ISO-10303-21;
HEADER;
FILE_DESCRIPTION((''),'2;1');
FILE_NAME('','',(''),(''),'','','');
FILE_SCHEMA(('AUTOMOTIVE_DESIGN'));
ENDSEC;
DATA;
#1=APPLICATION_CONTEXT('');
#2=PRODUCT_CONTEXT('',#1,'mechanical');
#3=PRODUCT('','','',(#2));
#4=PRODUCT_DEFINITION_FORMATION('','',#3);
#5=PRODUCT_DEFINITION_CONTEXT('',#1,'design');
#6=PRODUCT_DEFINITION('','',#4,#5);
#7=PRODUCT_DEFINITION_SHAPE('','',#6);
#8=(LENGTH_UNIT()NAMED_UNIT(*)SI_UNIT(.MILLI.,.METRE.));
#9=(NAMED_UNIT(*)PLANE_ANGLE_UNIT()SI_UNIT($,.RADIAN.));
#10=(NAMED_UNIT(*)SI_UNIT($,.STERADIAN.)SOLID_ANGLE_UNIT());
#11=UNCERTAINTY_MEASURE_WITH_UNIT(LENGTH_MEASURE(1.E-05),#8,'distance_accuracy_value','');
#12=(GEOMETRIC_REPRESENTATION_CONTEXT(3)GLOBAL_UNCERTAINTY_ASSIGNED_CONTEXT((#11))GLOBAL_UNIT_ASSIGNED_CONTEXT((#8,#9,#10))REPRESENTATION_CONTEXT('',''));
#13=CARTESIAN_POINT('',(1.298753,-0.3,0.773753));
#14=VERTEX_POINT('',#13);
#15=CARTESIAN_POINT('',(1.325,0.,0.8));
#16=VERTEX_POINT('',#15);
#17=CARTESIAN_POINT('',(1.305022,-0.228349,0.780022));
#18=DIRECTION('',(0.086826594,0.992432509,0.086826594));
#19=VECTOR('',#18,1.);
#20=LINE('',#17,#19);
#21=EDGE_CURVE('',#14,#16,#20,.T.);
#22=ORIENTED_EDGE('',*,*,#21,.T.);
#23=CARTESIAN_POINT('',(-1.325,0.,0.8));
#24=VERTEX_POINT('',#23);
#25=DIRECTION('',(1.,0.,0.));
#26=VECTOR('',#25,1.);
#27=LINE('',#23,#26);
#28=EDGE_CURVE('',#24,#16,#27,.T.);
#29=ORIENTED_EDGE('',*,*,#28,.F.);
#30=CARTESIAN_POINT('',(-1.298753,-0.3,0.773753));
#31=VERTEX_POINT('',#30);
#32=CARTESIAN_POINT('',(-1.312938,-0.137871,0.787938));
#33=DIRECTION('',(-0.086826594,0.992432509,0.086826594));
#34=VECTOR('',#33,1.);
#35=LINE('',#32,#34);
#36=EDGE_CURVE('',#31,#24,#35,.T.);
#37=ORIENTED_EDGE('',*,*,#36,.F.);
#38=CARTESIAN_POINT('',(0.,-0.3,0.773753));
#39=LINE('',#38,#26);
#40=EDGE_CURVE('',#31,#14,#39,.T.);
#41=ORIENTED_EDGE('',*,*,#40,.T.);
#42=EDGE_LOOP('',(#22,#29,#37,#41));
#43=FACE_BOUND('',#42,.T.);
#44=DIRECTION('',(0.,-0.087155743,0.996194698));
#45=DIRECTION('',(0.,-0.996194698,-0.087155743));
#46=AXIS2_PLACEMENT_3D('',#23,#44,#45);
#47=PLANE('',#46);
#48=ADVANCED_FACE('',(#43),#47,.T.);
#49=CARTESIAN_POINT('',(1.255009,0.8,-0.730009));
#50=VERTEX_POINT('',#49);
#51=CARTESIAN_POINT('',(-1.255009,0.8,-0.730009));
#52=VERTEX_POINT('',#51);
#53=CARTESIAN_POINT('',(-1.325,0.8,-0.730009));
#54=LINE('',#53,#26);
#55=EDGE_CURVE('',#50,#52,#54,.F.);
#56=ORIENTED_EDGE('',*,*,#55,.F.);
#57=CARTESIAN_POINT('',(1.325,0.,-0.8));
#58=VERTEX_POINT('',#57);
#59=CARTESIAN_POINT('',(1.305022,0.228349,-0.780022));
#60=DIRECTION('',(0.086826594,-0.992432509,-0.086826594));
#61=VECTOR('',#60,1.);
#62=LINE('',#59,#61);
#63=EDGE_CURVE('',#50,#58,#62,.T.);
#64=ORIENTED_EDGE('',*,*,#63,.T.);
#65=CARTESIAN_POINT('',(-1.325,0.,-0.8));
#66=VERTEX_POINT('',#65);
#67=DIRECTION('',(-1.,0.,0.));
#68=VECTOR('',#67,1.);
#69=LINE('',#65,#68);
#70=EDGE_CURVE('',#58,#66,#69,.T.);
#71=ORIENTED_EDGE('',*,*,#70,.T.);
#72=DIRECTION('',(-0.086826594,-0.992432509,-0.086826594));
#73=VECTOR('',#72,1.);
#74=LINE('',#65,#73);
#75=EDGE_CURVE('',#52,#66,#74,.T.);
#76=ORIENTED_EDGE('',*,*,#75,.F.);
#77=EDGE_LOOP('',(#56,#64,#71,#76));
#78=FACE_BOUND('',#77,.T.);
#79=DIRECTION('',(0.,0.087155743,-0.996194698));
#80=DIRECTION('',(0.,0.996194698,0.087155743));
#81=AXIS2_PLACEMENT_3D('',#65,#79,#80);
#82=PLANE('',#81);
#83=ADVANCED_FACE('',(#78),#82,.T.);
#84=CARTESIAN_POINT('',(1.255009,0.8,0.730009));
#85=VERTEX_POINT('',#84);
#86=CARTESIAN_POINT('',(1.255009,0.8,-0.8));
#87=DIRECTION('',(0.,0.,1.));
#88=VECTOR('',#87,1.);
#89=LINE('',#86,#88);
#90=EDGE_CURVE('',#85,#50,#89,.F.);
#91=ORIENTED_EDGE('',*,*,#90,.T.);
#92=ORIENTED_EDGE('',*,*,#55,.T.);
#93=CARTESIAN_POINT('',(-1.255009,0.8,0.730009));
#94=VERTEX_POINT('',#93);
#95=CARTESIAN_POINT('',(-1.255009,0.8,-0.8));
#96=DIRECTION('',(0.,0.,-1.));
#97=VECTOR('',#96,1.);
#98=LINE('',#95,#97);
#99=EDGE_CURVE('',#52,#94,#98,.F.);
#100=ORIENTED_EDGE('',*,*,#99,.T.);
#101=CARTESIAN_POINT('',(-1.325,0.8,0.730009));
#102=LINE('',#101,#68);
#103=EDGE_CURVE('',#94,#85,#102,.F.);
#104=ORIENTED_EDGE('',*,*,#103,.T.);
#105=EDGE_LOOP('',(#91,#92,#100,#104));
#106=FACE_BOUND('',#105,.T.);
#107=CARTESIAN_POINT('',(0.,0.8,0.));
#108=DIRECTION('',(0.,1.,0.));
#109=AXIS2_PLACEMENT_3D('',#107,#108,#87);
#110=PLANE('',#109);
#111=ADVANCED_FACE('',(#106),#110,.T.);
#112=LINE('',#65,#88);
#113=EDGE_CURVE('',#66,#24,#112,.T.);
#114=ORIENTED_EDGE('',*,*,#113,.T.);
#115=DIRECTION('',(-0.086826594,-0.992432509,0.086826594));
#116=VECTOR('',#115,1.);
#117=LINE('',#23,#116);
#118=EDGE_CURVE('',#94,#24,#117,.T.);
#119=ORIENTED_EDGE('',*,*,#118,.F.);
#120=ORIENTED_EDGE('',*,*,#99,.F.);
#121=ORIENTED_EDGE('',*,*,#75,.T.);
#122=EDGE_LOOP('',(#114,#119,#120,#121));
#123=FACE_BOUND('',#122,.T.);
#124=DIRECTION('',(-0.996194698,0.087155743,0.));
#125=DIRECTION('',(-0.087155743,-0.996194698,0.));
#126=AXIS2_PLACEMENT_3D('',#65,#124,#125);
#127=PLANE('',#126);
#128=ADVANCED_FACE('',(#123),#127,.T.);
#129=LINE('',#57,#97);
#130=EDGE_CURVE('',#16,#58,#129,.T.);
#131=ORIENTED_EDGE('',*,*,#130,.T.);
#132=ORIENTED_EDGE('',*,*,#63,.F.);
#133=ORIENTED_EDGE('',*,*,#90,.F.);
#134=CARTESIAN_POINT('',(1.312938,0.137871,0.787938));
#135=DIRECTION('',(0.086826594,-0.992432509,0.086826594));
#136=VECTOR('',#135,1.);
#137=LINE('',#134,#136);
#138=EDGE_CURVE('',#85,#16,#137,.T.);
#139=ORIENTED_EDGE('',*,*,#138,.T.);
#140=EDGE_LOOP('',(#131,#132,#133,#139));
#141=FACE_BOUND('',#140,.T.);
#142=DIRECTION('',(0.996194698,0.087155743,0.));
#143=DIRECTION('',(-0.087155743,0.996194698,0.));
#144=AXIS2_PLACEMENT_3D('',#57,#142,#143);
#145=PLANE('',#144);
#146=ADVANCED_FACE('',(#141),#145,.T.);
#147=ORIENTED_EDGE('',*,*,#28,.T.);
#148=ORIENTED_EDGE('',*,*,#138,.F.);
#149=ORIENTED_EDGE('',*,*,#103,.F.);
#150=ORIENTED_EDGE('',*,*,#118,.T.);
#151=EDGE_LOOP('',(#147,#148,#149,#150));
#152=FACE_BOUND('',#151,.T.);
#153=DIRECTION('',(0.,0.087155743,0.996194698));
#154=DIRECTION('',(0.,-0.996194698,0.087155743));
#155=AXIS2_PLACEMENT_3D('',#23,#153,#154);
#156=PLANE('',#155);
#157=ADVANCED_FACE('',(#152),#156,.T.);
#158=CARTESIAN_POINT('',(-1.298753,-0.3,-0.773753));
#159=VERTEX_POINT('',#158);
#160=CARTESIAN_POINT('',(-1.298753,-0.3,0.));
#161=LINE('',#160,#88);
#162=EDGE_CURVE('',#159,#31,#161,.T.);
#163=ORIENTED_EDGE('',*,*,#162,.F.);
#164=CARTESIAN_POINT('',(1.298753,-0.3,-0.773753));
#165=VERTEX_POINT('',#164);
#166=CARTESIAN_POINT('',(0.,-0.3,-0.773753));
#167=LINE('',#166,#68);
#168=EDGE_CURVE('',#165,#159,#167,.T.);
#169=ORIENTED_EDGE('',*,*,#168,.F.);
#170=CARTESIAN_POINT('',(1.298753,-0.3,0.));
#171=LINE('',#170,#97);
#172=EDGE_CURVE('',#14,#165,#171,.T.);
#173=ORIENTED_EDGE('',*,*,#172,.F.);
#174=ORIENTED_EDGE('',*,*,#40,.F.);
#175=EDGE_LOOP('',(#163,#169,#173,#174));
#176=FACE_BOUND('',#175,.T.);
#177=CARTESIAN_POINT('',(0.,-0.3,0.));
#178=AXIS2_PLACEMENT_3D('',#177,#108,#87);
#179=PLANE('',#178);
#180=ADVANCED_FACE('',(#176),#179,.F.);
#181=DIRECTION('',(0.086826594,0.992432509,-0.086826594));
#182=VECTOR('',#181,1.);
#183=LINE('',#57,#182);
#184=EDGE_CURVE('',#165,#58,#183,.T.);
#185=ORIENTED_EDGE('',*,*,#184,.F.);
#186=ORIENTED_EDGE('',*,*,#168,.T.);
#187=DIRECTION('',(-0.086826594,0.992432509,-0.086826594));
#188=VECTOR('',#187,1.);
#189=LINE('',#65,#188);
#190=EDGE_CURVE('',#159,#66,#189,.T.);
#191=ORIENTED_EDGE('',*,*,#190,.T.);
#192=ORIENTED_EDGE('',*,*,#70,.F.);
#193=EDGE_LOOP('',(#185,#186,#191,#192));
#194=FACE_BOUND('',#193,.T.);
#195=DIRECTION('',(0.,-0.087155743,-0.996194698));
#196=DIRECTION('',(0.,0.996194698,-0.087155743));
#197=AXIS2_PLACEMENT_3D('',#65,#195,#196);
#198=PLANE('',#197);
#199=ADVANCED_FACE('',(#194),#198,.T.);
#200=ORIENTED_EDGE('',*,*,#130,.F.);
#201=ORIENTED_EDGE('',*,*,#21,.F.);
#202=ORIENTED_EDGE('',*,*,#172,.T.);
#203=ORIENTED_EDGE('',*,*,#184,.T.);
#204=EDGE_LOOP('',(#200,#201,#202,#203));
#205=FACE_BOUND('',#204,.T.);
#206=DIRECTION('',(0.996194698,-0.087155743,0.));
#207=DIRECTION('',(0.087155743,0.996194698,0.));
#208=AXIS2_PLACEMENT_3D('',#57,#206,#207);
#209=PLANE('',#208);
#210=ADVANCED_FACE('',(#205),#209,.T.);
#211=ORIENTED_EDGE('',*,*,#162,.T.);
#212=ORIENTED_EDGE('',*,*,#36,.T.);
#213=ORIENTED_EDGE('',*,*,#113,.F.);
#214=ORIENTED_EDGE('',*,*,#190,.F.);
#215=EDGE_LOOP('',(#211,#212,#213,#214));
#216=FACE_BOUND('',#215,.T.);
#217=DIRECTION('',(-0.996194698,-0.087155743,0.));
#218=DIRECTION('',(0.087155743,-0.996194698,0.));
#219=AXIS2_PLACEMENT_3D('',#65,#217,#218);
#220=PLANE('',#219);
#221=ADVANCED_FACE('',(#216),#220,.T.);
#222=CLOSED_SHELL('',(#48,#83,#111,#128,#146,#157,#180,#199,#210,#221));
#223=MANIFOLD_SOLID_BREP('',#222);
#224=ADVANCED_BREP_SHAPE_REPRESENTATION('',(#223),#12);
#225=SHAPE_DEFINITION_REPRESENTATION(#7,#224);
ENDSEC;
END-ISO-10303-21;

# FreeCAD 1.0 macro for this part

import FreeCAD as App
import Part
import Sketcher
Q = App.Units.Quantity


def add_polygon(sketch, points):
    """Adds a closed chain of lines whose ends are joined by coincident constraints."""
    first, n = sketch.GeometryCount, len(points)
    for a, b in zip(points, points[1:] + points[:1]):
        sketch.addGeometry(Part.LineSegment(App.Vector(*a, 0), App.Vector(*b, 0)), False)
    for i in range(n):
        sketch.addConstraint(Sketcher.Constraint("Coincident", first + i, 2, first + (i + 1) % n, 1))

doc = App.newDocument("Part")
body = doc.addObject("PartDesign::Body", "Body")

# Sketch on XZ plane
sketch1 = doc.addObject("Sketcher::SketchObject", "Sketch")
body.addObject(sketch1)
sketch1.AttachmentSupport = (doc.XZ_Plane, [""])
sketch1.MapMode = "FlatFace"
add_polygon(sketch1, [(-1.325, -0.8), (-1.325, 0.8), (1.325, 0.8), (1.325, -0.8)])  # lines 0-3
sketch1.addConstraint([
    Sketcher.Constraint("Vertical", 0),
    Sketcher.Constraint("Horizontal", 1),
    Sketcher.Constraint("Vertical", 2),
    Sketcher.Constraint("Horizontal", 3),
    Sketcher.Constraint("Symmetric", 0, 2, 2, 2, -1, 1),
    Sketcher.Constraint("DistanceY", 0, 1, 0, 2, Q("1.6 mm")),
    Sketcher.Constraint("DistanceX", 1, 1, 1, 2, Q("2.65 mm")),
])
pad1 = doc.addObject("PartDesign::Pad", "Pad")
body.addObject(pad1)
pad1.Profile = sketch1
pad1.Length = 0.8
pad1.Reversed = True
pad1.TaperAngle = -5

# Sketch on XZ plane
sketch2 = doc.addObject("Sketcher::SketchObject", "Sketch001")
body.addObject(sketch2)
sketch2.AttachmentSupport = (doc.XZ_Plane, [""])
sketch2.MapMode = "FlatFace"
add_polygon(sketch2, [(-1.325, -0.8), (-1.325, 0.8), (1.325, 0.8), (1.325, -0.8)])  # lines 0-3
sketch2.addConstraint([
    Sketcher.Constraint("Vertical", 0),
    Sketcher.Constraint("Horizontal", 1),
    Sketcher.Constraint("Vertical", 2),
    Sketcher.Constraint("Horizontal", 3),
    Sketcher.Constraint("Symmetric", 0, 2, 2, 2, -1, 1),
    Sketcher.Constraint("DistanceY", 0, 1, 0, 2, Q("1.6 mm")),
    Sketcher.Constraint("DistanceX", 1, 1, 1, 2, Q("2.65 mm")),
])
pad2 = doc.addObject("PartDesign::Pad", "Pad001")
body.addObject(pad2)
pad2.Profile = sketch2
pad2.Length = 0.3
pad2.TaperAngle = -5

doc.recompute()
